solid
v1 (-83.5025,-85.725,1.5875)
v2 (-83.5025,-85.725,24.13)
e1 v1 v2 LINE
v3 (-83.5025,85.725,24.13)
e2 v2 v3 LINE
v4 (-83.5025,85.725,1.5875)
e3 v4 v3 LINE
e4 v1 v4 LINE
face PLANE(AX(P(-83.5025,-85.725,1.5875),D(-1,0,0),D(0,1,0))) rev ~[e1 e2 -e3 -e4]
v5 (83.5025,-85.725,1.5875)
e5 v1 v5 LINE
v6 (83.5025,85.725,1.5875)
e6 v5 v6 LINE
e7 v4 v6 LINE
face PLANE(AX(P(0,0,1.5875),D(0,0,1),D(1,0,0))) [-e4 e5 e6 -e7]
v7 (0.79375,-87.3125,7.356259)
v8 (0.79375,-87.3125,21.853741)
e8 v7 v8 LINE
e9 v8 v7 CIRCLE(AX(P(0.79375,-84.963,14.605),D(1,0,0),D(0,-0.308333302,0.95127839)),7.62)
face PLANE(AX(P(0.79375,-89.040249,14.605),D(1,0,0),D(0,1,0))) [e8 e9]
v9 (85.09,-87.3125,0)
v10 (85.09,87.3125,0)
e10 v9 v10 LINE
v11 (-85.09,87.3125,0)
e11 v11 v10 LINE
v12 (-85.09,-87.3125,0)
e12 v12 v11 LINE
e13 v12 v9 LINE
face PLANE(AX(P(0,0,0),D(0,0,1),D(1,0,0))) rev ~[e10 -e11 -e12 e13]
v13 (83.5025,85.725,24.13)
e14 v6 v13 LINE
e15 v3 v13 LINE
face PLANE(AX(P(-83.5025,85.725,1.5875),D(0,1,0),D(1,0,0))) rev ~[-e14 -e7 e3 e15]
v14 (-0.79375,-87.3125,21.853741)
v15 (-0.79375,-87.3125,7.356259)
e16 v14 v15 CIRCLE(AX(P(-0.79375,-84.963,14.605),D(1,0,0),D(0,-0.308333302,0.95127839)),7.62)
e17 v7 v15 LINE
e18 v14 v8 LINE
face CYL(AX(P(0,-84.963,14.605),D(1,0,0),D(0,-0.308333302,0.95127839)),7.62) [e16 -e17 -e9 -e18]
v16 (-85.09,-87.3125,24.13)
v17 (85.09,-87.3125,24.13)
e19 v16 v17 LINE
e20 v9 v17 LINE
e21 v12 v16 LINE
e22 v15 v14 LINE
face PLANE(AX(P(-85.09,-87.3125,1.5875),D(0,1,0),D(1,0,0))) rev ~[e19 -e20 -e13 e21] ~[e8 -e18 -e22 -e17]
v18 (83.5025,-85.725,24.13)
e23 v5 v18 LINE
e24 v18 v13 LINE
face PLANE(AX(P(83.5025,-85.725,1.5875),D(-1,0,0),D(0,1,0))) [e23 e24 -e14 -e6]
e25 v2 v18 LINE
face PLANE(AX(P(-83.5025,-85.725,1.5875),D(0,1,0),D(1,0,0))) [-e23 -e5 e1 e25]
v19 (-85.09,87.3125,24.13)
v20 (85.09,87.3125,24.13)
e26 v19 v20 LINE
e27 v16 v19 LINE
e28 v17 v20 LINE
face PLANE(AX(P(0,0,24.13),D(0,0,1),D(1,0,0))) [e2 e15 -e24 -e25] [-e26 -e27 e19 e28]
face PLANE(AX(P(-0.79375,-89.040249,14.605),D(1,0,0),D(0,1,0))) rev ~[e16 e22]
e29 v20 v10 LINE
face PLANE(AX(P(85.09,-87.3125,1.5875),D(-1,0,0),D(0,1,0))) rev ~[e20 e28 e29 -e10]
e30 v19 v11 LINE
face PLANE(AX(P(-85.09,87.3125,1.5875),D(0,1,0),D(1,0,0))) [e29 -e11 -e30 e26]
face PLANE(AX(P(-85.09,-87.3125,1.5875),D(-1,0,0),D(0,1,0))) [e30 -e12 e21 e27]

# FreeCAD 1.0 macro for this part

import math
import FreeCAD as App
import Part
import Sketcher

V = App.Vector
Q = App.Units.Quantity

doc = App.newDocument("Part")
body = doc.addObject("PartDesign::Body", "Body")

# Sketch on XY plane
sketch1 = body.newObject("Sketcher::SketchObject", "Sketch")
sketch1.AttachmentSupport = (doc.getObject("XY_Plane"), [""])
sketch1.MapMode = "FlatFace"
sketch1.addGeometry(Part.LineSegment(V(-85, 87, 0), V(-85, -87, 0)), False)
sketch1.addGeometry(Part.LineSegment(V(-85, -87, 0), V(85, -87, 0)), False)
sketch1.addGeometry(Part.LineSegment(V(85, -87, 0), V(85, 87, 0)), False)
sketch1.addGeometry(Part.LineSegment(V(85, 87, 0), V(-85, 87, 0)), False)
sketch1.addConstraint(Sketcher.Constraint("Coincident", 0, 2, 1, 1))
sketch1.addConstraint(Sketcher.Constraint("Coincident", 1, 2, 2, 1))
sketch1.addConstraint(Sketcher.Constraint("Coincident", 2, 2, 3, 1))
sketch1.addConstraint(Sketcher.Constraint("Coincident", 3, 2, 0, 1))
sketch1.addConstraint(Sketcher.Constraint("Vertical", 0))
sketch1.addConstraint(Sketcher.Constraint("Horizontal", 1))
sketch1.addConstraint(Sketcher.Constraint("Vertical", 2))
sketch1.addConstraint(Sketcher.Constraint("Horizontal", 3))
sketch1.addConstraint(Sketcher.Constraint("Symmetric", 0, 2, 2, 2, -1, 1))
sketch1.addConstraint(Sketcher.Constraint("DistanceX", 1, 1, 1, 2, Q("6.7 in")))
sketch1.addConstraint(Sketcher.Constraint("DistanceY", 0, 2, 0, 1, Q("6.875 in")))
pad1 = body.newObject("PartDesign::Pad", "Pad")
pad1.Profile = sketch1
pad1.Length = Q("0.0625 in")

# Sketch on XY plane
sketch2 = body.newObject("Sketcher::SketchObject", "Sketch001")
sketch2.AttachmentSupport = (doc.getObject("XY_Plane"), [""])
sketch2.MapMode = "FlatFace"
sketch2.AttachmentOffset = App.Placement(V(0, 0, 0.0625 * 25.4), App.Rotation())
sketch2.addGeometry(Part.LineSegment(V(-85, 87, 0), V(-85, -87, 0)), False)
sketch2.addGeometry(Part.LineSegment(V(-85, -87, 0), V(85, -87, 0)), False)
sketch2.addGeometry(Part.LineSegment(V(85, -87, 0), V(85, 87, 0)), False)
sketch2.addGeometry(Part.LineSegment(V(85, 87, 0), V(-85, 87, 0)), False)
sketch2.addGeometry(Part.LineSegment(V(84, -86, 0), V(-84, -86, 0)), False)
sketch2.addGeometry(Part.LineSegment(V(-84, -86, 0), V(-84, 86, 0)), False)
sketch2.addGeometry(Part.LineSegment(V(-84, 86, 0), V(84, 86, 0)), False)
sketch2.addGeometry(Part.LineSegment(V(84, 86, 0), V(84, -86, 0)), False)
sketch2.addConstraint(Sketcher.Constraint("Coincident", 0, 2, 1, 1))
sketch2.addConstraint(Sketcher.Constraint("Coincident", 1, 2, 2, 1))
sketch2.addConstraint(Sketcher.Constraint("Coincident", 2, 2, 3, 1))
sketch2.addConstraint(Sketcher.Constraint("Coincident", 3, 2, 0, 1))
sketch2.addConstraint(Sketcher.Constraint("Coincident", 4, 2, 5, 1))
sketch2.addConstraint(Sketcher.Constraint("Coincident", 5, 2, 6, 1))
sketch2.addConstraint(Sketcher.Constraint("Coincident", 6, 2, 7, 1))
sketch2.addConstraint(Sketcher.Constraint("Coincident", 7, 2, 4, 1))
sketch2.addConstraint(Sketcher.Constraint("Vertical", 0))
sketch2.addConstraint(Sketcher.Constraint("Horizontal", 1))
sketch2.addConstraint(Sketcher.Constraint("Vertical", 2))
sketch2.addConstraint(Sketcher.Constraint("Horizontal", 3))
sketch2.addConstraint(Sketcher.Constraint("Horizontal", 4))
sketch2.addConstraint(Sketcher.Constraint("Vertical", 5))
sketch2.addConstraint(Sketcher.Constraint("Horizontal", 6))
sketch2.addConstraint(Sketcher.Constraint("Vertical", 7))
sketch2.addConstraint(Sketcher.Constraint("Symmetric", 0, 2, 2, 2, -1, 1))
sketch2.addConstraint(Sketcher.Constraint("Symmetric", 4, 2, 6, 2, -1, 1))
sketch2.addConstraint(Sketcher.Constraint("DistanceX", 1, 1, 1, 2, Q("6.7 in")))
sketch2.addConstraint(Sketcher.Constraint("DistanceY", 5, 1, 5, 2, Q("6.75 in")))
sketch2.addConstraint(Sketcher.Constraint("DistanceX", 4, 2, 4, 1, Q("6.575 in")))
sketch2.addConstraint(Sketcher.Constraint("DistanceY", 0, 2, 0, 1, Q("6.875 in")))
pad2 = body.newObject("PartDesign::Pad", "Pad001")
pad2.Profile = sketch2
pad2.Length = Q("0.8875 in")

# Sketch on YZ plane
sketch3 = body.newObject("Sketcher::SketchObject", "Sketch002")
sketch3.AttachmentSupport = (doc.getObject("YZ_Plane"), [""])
sketch3.MapMode = "FlatFace"
sketch3.addGeometry(Part.LineSegment(V(-87, 7, 0), V(-87, 22, 0)), False)
sketch3.addGeometry(Part.ArcOfCircle(Part.Circle(V(-85, 15, 0), V(0, 0, 1), 8), math.radians(108), math.radians(252)), False)
sketch3.addConstraint(Sketcher.Constraint("Coincident", 0, 1, 1, 2))
sketch3.addConstraint(Sketcher.Constraint("Coincident", 1, 1, 0, 2))
sketch3.addConstraint(Sketcher.Constraint("Vertical", 0))
sketch3.addConstraint(Sketcher.Constraint("Radius", 1, Q("0.3 in")))
sketch3.addConstraint(Sketcher.Constraint("DistanceX", 1, 3, -1, 1, Q("3.345 in")))
sketch3.addConstraint(Sketcher.Constraint("DistanceY", -1, 1, 1, 3, Q("0.575 in")))
sketch3.addConstraint(Sketcher.Constraint("DistanceX", 0, 1, -1, 1, Q("3.4375 in")))
pad3 = body.newObject("PartDesign::Pad", "Pad002")
pad3.Profile = sketch3
pad3.Length = Q("0.0625 in")
pad3.Midplane = True

doc.recompute()
